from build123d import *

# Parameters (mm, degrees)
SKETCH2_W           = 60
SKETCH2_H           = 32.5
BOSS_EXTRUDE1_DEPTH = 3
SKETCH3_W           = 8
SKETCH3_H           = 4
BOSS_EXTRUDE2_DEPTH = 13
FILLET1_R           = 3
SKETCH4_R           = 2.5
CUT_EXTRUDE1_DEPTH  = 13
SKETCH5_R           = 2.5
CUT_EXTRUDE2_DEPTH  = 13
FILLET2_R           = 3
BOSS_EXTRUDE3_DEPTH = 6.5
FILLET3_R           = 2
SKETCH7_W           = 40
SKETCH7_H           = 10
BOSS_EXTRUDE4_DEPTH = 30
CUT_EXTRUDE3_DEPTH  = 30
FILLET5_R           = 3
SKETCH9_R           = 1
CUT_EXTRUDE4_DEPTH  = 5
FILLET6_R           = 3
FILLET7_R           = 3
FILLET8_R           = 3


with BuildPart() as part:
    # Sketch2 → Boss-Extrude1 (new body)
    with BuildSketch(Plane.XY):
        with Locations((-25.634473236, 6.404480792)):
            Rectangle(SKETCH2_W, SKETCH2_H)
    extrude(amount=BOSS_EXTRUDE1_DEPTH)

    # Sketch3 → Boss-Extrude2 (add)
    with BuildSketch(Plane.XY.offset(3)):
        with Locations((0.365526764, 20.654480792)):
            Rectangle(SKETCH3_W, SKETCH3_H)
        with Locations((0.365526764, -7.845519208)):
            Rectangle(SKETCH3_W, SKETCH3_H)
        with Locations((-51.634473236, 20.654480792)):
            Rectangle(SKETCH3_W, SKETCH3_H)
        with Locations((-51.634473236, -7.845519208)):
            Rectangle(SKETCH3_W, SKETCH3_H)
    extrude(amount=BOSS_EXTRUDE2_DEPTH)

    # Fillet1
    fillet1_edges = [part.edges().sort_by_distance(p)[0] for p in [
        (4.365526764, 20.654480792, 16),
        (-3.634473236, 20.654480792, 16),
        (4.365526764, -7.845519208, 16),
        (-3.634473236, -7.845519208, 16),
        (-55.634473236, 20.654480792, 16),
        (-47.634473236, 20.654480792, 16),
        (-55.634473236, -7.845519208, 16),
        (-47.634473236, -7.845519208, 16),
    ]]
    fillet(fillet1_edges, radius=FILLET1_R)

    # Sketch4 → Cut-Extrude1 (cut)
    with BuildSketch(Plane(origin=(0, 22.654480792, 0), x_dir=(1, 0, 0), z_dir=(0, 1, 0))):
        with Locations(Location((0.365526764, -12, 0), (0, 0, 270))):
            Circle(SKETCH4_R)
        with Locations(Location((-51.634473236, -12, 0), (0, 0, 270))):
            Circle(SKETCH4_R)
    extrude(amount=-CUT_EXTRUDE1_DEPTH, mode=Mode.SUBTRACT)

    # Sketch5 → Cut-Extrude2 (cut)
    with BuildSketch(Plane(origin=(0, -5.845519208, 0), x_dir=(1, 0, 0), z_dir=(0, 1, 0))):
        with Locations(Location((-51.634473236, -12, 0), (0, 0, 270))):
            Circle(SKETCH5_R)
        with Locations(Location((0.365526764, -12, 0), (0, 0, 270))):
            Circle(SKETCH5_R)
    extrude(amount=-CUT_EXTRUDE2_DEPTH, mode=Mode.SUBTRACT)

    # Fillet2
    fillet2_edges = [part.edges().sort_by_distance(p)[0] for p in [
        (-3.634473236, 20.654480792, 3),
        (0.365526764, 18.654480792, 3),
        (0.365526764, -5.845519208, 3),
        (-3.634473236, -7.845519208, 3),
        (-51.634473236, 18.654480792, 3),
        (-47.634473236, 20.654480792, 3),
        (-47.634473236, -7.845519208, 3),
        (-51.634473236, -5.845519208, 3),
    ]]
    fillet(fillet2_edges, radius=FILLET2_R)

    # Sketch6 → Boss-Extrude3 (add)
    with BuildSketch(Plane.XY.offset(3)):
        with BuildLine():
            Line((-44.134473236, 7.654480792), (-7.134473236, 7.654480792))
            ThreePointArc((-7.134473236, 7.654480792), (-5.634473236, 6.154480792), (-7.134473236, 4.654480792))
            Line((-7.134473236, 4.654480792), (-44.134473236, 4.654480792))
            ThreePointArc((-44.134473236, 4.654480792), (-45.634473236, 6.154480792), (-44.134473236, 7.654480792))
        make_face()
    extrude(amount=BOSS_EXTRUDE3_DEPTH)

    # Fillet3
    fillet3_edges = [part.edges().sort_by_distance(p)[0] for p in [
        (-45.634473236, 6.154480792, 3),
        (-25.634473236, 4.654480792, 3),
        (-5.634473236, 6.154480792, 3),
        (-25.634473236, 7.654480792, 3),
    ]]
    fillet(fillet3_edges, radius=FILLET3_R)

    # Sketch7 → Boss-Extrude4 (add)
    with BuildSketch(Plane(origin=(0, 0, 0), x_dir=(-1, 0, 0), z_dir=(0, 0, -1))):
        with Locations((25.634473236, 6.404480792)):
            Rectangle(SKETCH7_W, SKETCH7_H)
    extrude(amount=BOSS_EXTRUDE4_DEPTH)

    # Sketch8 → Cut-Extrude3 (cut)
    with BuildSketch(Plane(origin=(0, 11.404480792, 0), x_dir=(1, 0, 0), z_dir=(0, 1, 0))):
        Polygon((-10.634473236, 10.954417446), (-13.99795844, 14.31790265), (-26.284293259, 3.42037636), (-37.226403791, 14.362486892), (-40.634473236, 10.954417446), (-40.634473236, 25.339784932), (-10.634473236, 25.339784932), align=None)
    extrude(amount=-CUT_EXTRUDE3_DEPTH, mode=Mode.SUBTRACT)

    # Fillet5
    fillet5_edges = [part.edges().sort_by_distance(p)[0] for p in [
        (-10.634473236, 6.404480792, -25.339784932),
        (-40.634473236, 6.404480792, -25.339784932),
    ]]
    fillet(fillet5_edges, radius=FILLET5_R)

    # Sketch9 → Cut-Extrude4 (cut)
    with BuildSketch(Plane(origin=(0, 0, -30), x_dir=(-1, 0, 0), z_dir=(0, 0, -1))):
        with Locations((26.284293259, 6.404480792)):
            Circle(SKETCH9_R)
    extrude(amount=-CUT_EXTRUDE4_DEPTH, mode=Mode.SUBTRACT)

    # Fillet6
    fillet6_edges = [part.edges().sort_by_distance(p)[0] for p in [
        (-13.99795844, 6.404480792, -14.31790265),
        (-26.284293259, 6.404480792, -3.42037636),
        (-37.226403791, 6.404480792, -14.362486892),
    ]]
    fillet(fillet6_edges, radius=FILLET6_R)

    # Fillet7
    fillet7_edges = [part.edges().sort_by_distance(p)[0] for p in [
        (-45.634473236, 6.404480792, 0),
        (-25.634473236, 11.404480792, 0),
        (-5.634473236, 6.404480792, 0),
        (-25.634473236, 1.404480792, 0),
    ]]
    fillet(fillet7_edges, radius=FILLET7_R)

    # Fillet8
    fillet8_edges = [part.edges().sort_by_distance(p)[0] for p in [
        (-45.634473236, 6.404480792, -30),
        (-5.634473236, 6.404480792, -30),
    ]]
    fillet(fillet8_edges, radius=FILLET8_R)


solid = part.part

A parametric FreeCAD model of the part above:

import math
import FreeCAD as App
import Part
import Sketcher
from FreeCAD import Vector
Q = App.Units.Quantity


def edges_at(feature, points):
    """Names of the edges that pass closest to the given points."""
    edges = feature.Shape.Edges
    near = lambda p: min(range(len(edges)), key=lambda i: edges[i].distToShape(Part.Vertex(*p))[0])
    return sorted({f"Edge{near(p) + 1}" for p in points})

doc = App.newDocument("Part")
body = doc.addObject("PartDesign::Body", "Body")

sketch1 = doc.addObject("Sketcher::SketchObject", "Sketch")
body.addObject(sketch1)
sketch1.AttachmentSupport = (doc.XY_Plane, [""])
sketch1.MapMode = "FlatFace"
sketch1.addGeometry([
    Part.LineSegment(Vector(-56, 23, 0), Vector(-56, -10, 0)),
    Part.LineSegment(Vector(-56, -10, 0), Vector(4, -10, 0)),
    Part.LineSegment(Vector(4, -10, 0), Vector(4, 23, 0)),
    Part.LineSegment(Vector(4, 23, 0), Vector(-56, 23, 0)),
], False)
sketch1.addConstraint([
    Sketcher.Constraint("Coincident", 0, 2, 1, 1),
    Sketcher.Constraint("Coincident", 1, 2, 2, 1),
    Sketcher.Constraint("Coincident", 2, 2, 3, 1),
    Sketcher.Constraint("Coincident", 3, 2, 0, 1),
    Sketcher.Constraint("Vertical", 0),
    Sketcher.Constraint("Horizontal", 1),
    Sketcher.Constraint("Vertical", 2),
    Sketcher.Constraint("Horizontal", 3),
    Sketcher.Constraint("DistanceX", 1, 1, 1, 2, 60.0),
    Sketcher.Constraint("DistanceY", 0, 2, 0, 1, 32.5),
    Sketcher.Constraint("DistanceY", 0, 2, -1, 1, 9.845519),
    Sketcher.Constraint("DistanceX", 0, 2, -1, 1, 55.634473),
])
pad1 = doc.addObject("PartDesign::Pad", "Pad")
body.addObject(pad1)
pad1.Profile = sketch1
pad1.Length = 3

sketch2 = doc.addObject("Sketcher::SketchObject", "Sketch001")
body.addObject(sketch2)
sketch2.AttachmentSupport = (doc.XY_Plane, [""])
sketch2.MapMode = "FlatFace"
sketch2.AttachmentOffset = App.Placement(Vector(0, 0, 3), App.Rotation())
sketch2.addGeometry([
    Part.LineSegment(Vector(-3.6, 22.7, 0), Vector(-3.6, 18.7, 0)),
    Part.LineSegment(Vector(-3.6, 18.7, 0), Vector(4.4, 18.7, 0)),
    Part.LineSegment(Vector(4.4, 18.7, 0), Vector(4.4, 22.7, 0)),
    Part.LineSegment(Vector(4.4, 22.7, 0), Vector(-3.6, 22.7, 0)),
    Part.LineSegment(Vector(-3.6, -5.8, 0), Vector(-3.6, -9.8, 0)),
    Part.LineSegment(Vector(-3.6, -9.8, 0), Vector(4.4, -9.8, 0)),
    Part.LineSegment(Vector(4.4, -9.8, 0), Vector(4.4, -5.8, 0)),
    Part.LineSegment(Vector(4.4, -5.8, 0), Vector(-3.6, -5.8, 0)),
    Part.LineSegment(Vector(-55.6, 22.7, 0), Vector(-55.6, 18.7, 0)),
    Part.LineSegment(Vector(-55.6, 18.7, 0), Vector(-47.6, 18.7, 0)),
    Part.LineSegment(Vector(-47.6, 18.7, 0), Vector(-47.6, 22.7, 0)),
    Part.LineSegment(Vector(-47.6, 22.7, 0), Vector(-55.6, 22.7, 0)),
    Part.LineSegment(Vector(-55.6, -5.8, 0), Vector(-55.6, -9.8, 0)),
    Part.LineSegment(Vector(-55.6, -9.8, 0), Vector(-47.6, -9.8, 0)),
    Part.LineSegment(Vector(-47.6, -9.8, 0), Vector(-47.6, -5.8, 0)),
    Part.LineSegment(Vector(-47.6, -5.8, 0), Vector(-55.6, -5.8, 0)),
], False)
sketch2.addConstraint([
    Sketcher.Constraint("Coincident", 0, 2, 1, 1),
    Sketcher.Constraint("Coincident", 1, 2, 2, 1),
    Sketcher.Constraint("Coincident", 2, 2, 3, 1),
    Sketcher.Constraint("Coincident", 3, 2, 0, 1),
    Sketcher.Constraint("Coincident", 4, 2, 5, 1),
    Sketcher.Constraint("Coincident", 5, 2, 6, 1),
    Sketcher.Constraint("Coincident", 6, 2, 7, 1),
    Sketcher.Constraint("Coincident", 7, 2, 4, 1),
    Sketcher.Constraint("Coincident", 8, 2, 9, 1),
    Sketcher.Constraint("Coincident", 9, 2, 10, 1),
    Sketcher.Constraint("Coincident", 10, 2, 11, 1),
    Sketcher.Constraint("Coincident", 11, 2, 8, 1),
    Sketcher.Constraint("Coincident", 12, 2, 13, 1),
    Sketcher.Constraint("Coincident", 13, 2, 14, 1),
    Sketcher.Constraint("Coincident", 14, 2, 15, 1),
    Sketcher.Constraint("Coincident", 15, 2, 12, 1),
    Sketcher.Constraint("Vertical", 0),
    Sketcher.Constraint("Horizontal", 1),
    Sketcher.Constraint("Vertical", 2),
    Sketcher.Constraint("Horizontal", 3),
    Sketcher.Constraint("Vertical", 4),
    Sketcher.Constraint("Horizontal", 5),
    Sketcher.Constraint("Vertical", 6),
    Sketcher.Constraint("Horizontal", 7),
    Sketcher.Constraint("Vertical", 8),
    Sketcher.Constraint("Horizontal", 9),
    Sketcher.Constraint("Vertical", 10),
    Sketcher.Constraint("Horizontal", 11),
    Sketcher.Constraint("Vertical", 12),
    Sketcher.Constraint("Horizontal", 13),
    Sketcher.Constraint("Vertical", 14),
    Sketcher.Constraint("Horizontal", 15),
    Sketcher.Constraint("Horizontal", 1, 2, 8, 2),
    Sketcher.Constraint("Horizontal", 3, 2, 10, 2),
    Sketcher.Constraint("Horizontal", 5, 2, 12, 2),
    Sketcher.Constraint("Horizontal", 7, 2, 14, 2),
    Sketcher.Constraint("Vertical", 3, 2, 4, 2),
    Sketcher.Constraint("Vertical", 2, 2, 5, 2),
    Sketcher.Constraint("Vertical", 11, 2, 12, 2),
    Sketcher.Constraint("Vertical", 10, 2, 13, 2),
    Sketcher.Constraint("Equal", 7, 9),
    Sketcher.Constraint("Equal", 2, 4),
    Sketcher.Constraint("DistanceX", 1, 1, 1, 2, 8.0),
    Sketcher.Constraint("DistanceY", 0, 2, 0, 1, 4.0),
    Sketcher.Constraint("DistanceX", 8, 2, 0, 2, 52.0),
    Sketcher.Constraint("DistanceY", 4, 2, 0, 2, 28.5),
    Sketcher.Constraint("DistanceY", -1, 1, 0, 2, 18.654481),
    Sketcher.Constraint("DistanceX", 0, 2, -1, 1, 3.634473),
])
pad2 = doc.addObject("PartDesign::Pad", "Pad001")
body.addObject(pad2)
pad2.Profile = sketch2
pad2.Length = 13
doc.recompute()

fillet = doc.addObject("PartDesign::Fillet", "Fillet")
body.addObject(fillet)
fillet.Base = (pad2, edges_at(pad2, [
    (4.366, 20.654, 16),
    (-3.634, 20.654, 16),
    (4.366, -7.846, 16),
    (-3.634, -7.846, 16),
    (-55.634, 20.654, 16),
    (-47.634, 20.654, 16),
    (-55.634, -7.846, 16),
    (-47.634, -7.846, 16),
]))
fillet.Radius = 3

sketch3 = doc.addObject("Sketcher::SketchObject", "Sketch002")
body.addObject(sketch3)
sketch3.AttachmentSupport = (doc.XZ_Plane, [""])
sketch3.MapMode = "FlatFace"
sketch3.AttachmentOffset = App.Placement(Vector(0, 0, -22.654481), App.Rotation())
sketch3.addGeometry([
    Part.Circle(Vector(0.4, 12, 0), Vector(0, 0, 1), 2.5),
    Part.Circle(Vector(-51.6, 12, 0), Vector(0, 0, 1), 2.5),
], False)
sketch3.addConstraint([
    Sketcher.Constraint("Equal", 0, 1),
    Sketcher.Constraint("Horizontal", 0, 3, 1, 3),
    Sketcher.Constraint("Diameter", 0, 5.0),
    Sketcher.Constraint("DistanceY", -1, 1, 0, 3, 12.0),
    Sketcher.Constraint("DistanceX", 1, 3, 0, 3, 52.0),
    Sketcher.Constraint("DistanceX", -1, 1, 0, 3, 0.365527),
])
pocket1 = doc.addObject("PartDesign::Pocket", "Pocket")
body.addObject(pocket1)
pocket1.Profile = sketch3
pocket1.Length = 13
pocket1.Reversed = True

sketch4 = doc.addObject("Sketcher::SketchObject", "Sketch003")
body.addObject(sketch4)
sketch4.AttachmentSupport = (doc.XZ_Plane, [""])
sketch4.MapMode = "FlatFace"
sketch4.AttachmentOffset = App.Placement(Vector(0, 0, 5.845519), App.Rotation())
sketch4.addGeometry([
    Part.Circle(Vector(-51.6, 12, 0), Vector(0, 0, 1), 2.5),
    Part.Circle(Vector(0.4, 12, 0), Vector(0, 0, 1), 2.5),
], False)
sketch4.addConstraint([
    Sketcher.Constraint("Equal", 0, 1),
    Sketcher.Constraint("Horizontal", 0, 3, 1, 3),
    Sketcher.Constraint("Diameter", 0, 5.0),
    Sketcher.Constraint("DistanceY", -1, 1, 0, 3, 12.0),
    Sketcher.Constraint("DistanceX", 0, 3, 1, 3, 52.0),
    Sketcher.Constraint("DistanceX", 0, 3, -1, 1, 51.634473),
])
pocket2 = doc.addObject("PartDesign::Pocket", "Pocket001")
body.addObject(pocket2)
pocket2.Profile = sketch4
pocket2.Length = 13
pocket2.Reversed = True
doc.recompute()

fillet2 = doc.addObject("PartDesign::Fillet", "Fillet001")
body.addObject(fillet2)
fillet2.Base = (pocket2, edges_at(pocket2, [
    (-3.634, 20.654, 3),
    (0.366, 18.654, 3),
    (0.366, -5.846, 3),
    (-3.634, -7.846, 3),
    (-51.634, 18.654, 3),
    (-47.634, 20.654, 3),
    (-47.634, -7.846, 3),
    (-51.634, -5.846, 3),
]))
fillet2.Radius = 3

sketch5 = doc.addObject("Sketcher::SketchObject", "Sketch004")
body.addObject(sketch5)
sketch5.AttachmentSupport = (doc.XY_Plane, [""])
sketch5.MapMode = "FlatFace"
sketch5.AttachmentOffset = App.Placement(Vector(0, 0, 3), App.Rotation())
sketch5.addGeometry([
    Part.LineSegment(Vector(-7.1, 7.7, 0), Vector(-44.1, 7.7, 0)),
    Part.ArcOfCircle(Part.Circle(Vector(-44.1, 6.2, 0), Vector(0, 0, 1), 1.5), math.radians(90), math.radians(270)),
    Part.LineSegment(Vector(-44.1, 4.7, 0), Vector(-7.1, 4.7, 0)),
    Part.ArcOfCircle(Part.Circle(Vector(-7.1, 6.2, 0), Vector(0, 0, 1), 1.5), math.radians(-90), math.radians(90)),
], False)
sketch5.addConstraint([
    Sketcher.Constraint("Tangent", 0, 2, 1, 1),
    Sketcher.Constraint("Tangent", 1, 2, 2, 1),
    Sketcher.Constraint("Tangent", 2, 2, 3, 1),
    Sketcher.Constraint("Tangent", 3, 2, 0, 1),
    Sketcher.Constraint("Horizontal", 0),
    Sketcher.Constraint("Horizontal", 2),
    Sketcher.Constraint("Radius", 1, 1.5),
    Sketcher.Constraint("DistanceX", 0, 2, 0, 1, 37.0),
    Sketcher.Constraint("DistanceY", -1, 1, 1, 3, 6.154481),
    Sketcher.Constraint("DistanceX", 1, 3, -1, 1, 44.134473),
])
pad3 = doc.addObject("PartDesign::Pad", "Pad002")
body.addObject(pad3)
pad3.Profile = sketch5
pad3.Length = 6.5
doc.recompute()

fillet3 = doc.addObject("PartDesign::Fillet", "Fillet002")
body.addObject(fillet3)
fillet3.Base = (pad3, edges_at(pad3, [
    (-45.634, 6.154, 3),
    (-25.634, 4.654, 3),
    (-5.634, 6.154, 3),
    (-25.634, 7.654, 3),
]))
fillet3.Radius = 2

sketch6 = doc.addObject("Sketcher::SketchObject", "Sketch005")
body.addObject(sketch6)
sketch6.AttachmentSupport = (doc.XY_Plane, [""])
sketch6.MapMode = "FlatFace"
sketch6.addGeometry([
    Part.LineSegment(Vector(-6, 11, 0), Vector(-6, 1, 0)),
    Part.LineSegment(Vector(-6, 1, 0), Vector(-46, 1, 0)),
    Part.LineSegment(Vector(-46, 1, 0), Vector(-46, 11, 0)),
    Part.LineSegment(Vector(-46, 11, 0), Vector(-6, 11, 0)),
], False)
sketch6.addConstraint([
    Sketcher.Constraint("Coincident", 0, 2, 1, 1),
    Sketcher.Constraint("Coincident", 1, 2, 2, 1),
    Sketcher.Constraint("Coincident", 2, 2, 3, 1),
    Sketcher.Constraint("Coincident", 3, 2, 0, 1),
    Sketcher.Constraint("Vertical", 0),
    Sketcher.Constraint("Horizontal", 1),
    Sketcher.Constraint("Vertical", 2),
    Sketcher.Constraint("Horizontal", 3),
    Sketcher.Constraint("DistanceX", 1, 2, 1, 1, 40.0),
    Sketcher.Constraint("DistanceY", 0, 2, 0, 1, 10.0),
    Sketcher.Constraint("DistanceY", -1, 1, 0, 2, 1.404481),
    Sketcher.Constraint("DistanceX", 0, 2, -1, 1, 5.634473),
])
pad4 = doc.addObject("PartDesign::Pad", "Pad003")
body.addObject(pad4)
pad4.Profile = sketch6
pad4.Length = 30
pad4.Reversed = True

sketch7 = doc.addObject("Sketcher::SketchObject", "Sketch006")
body.addObject(sketch7)
sketch7.AttachmentSupport = (doc.XZ_Plane, [""])
sketch7.MapMode = "FlatFace"
sketch7.AttachmentOffset = App.Placement(Vector(0, 0, -11.404481), App.Rotation())
sketch7.addGeometry([
    Part.LineSegment(Vector(-14, -14.3, 0), Vector(-10.6, -11, 0)),
    Part.LineSegment(Vector(-10.6, -11, 0), Vector(-10.6, -25.3, 0)),
    Part.LineSegment(Vector(-10.6, -25.3, 0), Vector(-40.6, -25.3, 0)),
    Part.LineSegment(Vector(-40.6, -25.3, 0), Vector(-40.6, -11, 0)),
    Part.LineSegment(Vector(-40.6, -11, 0), Vector(-37.2, -14.4, 0)),
    Part.LineSegment(Vector(-37.2, -14.4, 0), Vector(-26.3, -3.4, 0)),
    Part.LineSegment(Vector(-26.3, -3.4, 0), Vector(-14, -14.3, 0)),
], False)
sketch7.addConstraint([
    Sketcher.Constraint("Coincident", 0, 2, 1, 1),
    Sketcher.Constraint("Coincident", 1, 2, 2, 1),
    Sketcher.Constraint("Coincident", 2, 2, 3, 1),
    Sketcher.Constraint("Coincident", 3, 2, 4, 1),
    Sketcher.Constraint("Coincident", 4, 2, 5, 1),
    Sketcher.Constraint("Coincident", 5, 2, 6, 1),
    Sketcher.Constraint("Coincident", 6, 2, 0, 1),
    Sketcher.Constraint("Vertical", 1),
    Sketcher.Constraint("Horizontal", 2),
    Sketcher.Constraint("Vertical", 3),
    Sketcher.Constraint("Perpendicular", 0, 4),
    Sketcher.Constraint("Perpendicular", 4, 5),
    Sketcher.Constraint("Horizontal", 0, 2, 3, 2),
    Sketcher.Constraint("DistanceX", 2, 2, 2, 1, 30.0),
    Sketcher.Constraint("Angle", 0, Q("45 deg")),
    Sketcher.Constraint("DistanceY", 2, 2, 4, 2, 10.977298),
    Sketcher.Constraint("Distance", 4, 4.819738),
    Sketcher.Constraint("Distance", 5, 15.474481),
    Sketcher.Constraint("DistanceX", 6, 2, -1, 1, 13.997958),
    Sketcher.Constraint("Distance", 0, 4.756686),
    Sketcher.Constraint("DistanceY", 0, 2, -1, 1, 10.954417),
])
pocket3 = doc.addObject("PartDesign::Pocket", "Pocket002")
body.addObject(pocket3)
pocket3.Profile = sketch7
pocket3.Length = 30
pocket3.Reversed = True
doc.recompute()

fillet4 = doc.addObject("PartDesign::Fillet", "Fillet003")
body.addObject(fillet4)
fillet4.Base = (pocket3, edges_at(pocket3, [(-10.634, 6.404, -25.34), (-40.634, 6.404, -25.34)]))
fillet4.Radius = 3

sketch8 = doc.addObject("Sketcher::SketchObject", "Sketch007")
body.addObject(sketch8)
sketch8.AttachmentSupport = (doc.XY_Plane, [""])
sketch8.MapMode = "FlatFace"
sketch8.AttachmentOffset = App.Placement(Vector(0, 0, -30), App.Rotation())
sketch8.addGeometry(Part.Circle(Vector(-26.3, 6.4, 0), Vector(0, 0, 1), 1), False)
sketch8.addConstraint([
    Sketcher.Constraint("Diameter", 0, 2.0),
    Sketcher.Constraint("DistanceY", -1, 1, 0, 3, 6.404481),
    Sketcher.Constraint("DistanceX", 0, 3, -1, 1, 26.284293),
])
pocket4 = doc.addObject("PartDesign::Pocket", "Pocket003")
body.addObject(pocket4)
pocket4.Profile = sketch8
pocket4.Length = 5
pocket4.Reversed = True
doc.recompute()

fillet5 = doc.addObject("PartDesign::Fillet", "Fillet004")
body.addObject(fillet5)
fillet5.Base = (pocket4, edges_at(pocket4, [(-13.998, 6.404, -14.318), (-26.284, 6.404, -3.42), (-37.226, 6.404, -14.362)]))
fillet5.Radius = 3
doc.recompute()

fillet6 = doc.addObject("PartDesign::Fillet", "Fillet005")
body.addObject(fillet6)
fillet6.Base = (fillet5, edges_at(fillet5, [
    (-45.634, 6.404, 0),
    (-25.634, 11.404, 0),
    (-5.634, 6.404, 0),
    (-25.634, 1.404, 0),
]))
fillet6.Radius = 3
doc.recompute()

fillet7 = doc.addObject("PartDesign::Fillet", "Fillet006")
body.addObject(fillet7)
fillet7.Base = (fillet6, edges_at(fillet6, [(-45.634, 6.404, -30), (-5.634, 6.404, -30)]))
fillet7.Radius = 3

doc.recompute()
